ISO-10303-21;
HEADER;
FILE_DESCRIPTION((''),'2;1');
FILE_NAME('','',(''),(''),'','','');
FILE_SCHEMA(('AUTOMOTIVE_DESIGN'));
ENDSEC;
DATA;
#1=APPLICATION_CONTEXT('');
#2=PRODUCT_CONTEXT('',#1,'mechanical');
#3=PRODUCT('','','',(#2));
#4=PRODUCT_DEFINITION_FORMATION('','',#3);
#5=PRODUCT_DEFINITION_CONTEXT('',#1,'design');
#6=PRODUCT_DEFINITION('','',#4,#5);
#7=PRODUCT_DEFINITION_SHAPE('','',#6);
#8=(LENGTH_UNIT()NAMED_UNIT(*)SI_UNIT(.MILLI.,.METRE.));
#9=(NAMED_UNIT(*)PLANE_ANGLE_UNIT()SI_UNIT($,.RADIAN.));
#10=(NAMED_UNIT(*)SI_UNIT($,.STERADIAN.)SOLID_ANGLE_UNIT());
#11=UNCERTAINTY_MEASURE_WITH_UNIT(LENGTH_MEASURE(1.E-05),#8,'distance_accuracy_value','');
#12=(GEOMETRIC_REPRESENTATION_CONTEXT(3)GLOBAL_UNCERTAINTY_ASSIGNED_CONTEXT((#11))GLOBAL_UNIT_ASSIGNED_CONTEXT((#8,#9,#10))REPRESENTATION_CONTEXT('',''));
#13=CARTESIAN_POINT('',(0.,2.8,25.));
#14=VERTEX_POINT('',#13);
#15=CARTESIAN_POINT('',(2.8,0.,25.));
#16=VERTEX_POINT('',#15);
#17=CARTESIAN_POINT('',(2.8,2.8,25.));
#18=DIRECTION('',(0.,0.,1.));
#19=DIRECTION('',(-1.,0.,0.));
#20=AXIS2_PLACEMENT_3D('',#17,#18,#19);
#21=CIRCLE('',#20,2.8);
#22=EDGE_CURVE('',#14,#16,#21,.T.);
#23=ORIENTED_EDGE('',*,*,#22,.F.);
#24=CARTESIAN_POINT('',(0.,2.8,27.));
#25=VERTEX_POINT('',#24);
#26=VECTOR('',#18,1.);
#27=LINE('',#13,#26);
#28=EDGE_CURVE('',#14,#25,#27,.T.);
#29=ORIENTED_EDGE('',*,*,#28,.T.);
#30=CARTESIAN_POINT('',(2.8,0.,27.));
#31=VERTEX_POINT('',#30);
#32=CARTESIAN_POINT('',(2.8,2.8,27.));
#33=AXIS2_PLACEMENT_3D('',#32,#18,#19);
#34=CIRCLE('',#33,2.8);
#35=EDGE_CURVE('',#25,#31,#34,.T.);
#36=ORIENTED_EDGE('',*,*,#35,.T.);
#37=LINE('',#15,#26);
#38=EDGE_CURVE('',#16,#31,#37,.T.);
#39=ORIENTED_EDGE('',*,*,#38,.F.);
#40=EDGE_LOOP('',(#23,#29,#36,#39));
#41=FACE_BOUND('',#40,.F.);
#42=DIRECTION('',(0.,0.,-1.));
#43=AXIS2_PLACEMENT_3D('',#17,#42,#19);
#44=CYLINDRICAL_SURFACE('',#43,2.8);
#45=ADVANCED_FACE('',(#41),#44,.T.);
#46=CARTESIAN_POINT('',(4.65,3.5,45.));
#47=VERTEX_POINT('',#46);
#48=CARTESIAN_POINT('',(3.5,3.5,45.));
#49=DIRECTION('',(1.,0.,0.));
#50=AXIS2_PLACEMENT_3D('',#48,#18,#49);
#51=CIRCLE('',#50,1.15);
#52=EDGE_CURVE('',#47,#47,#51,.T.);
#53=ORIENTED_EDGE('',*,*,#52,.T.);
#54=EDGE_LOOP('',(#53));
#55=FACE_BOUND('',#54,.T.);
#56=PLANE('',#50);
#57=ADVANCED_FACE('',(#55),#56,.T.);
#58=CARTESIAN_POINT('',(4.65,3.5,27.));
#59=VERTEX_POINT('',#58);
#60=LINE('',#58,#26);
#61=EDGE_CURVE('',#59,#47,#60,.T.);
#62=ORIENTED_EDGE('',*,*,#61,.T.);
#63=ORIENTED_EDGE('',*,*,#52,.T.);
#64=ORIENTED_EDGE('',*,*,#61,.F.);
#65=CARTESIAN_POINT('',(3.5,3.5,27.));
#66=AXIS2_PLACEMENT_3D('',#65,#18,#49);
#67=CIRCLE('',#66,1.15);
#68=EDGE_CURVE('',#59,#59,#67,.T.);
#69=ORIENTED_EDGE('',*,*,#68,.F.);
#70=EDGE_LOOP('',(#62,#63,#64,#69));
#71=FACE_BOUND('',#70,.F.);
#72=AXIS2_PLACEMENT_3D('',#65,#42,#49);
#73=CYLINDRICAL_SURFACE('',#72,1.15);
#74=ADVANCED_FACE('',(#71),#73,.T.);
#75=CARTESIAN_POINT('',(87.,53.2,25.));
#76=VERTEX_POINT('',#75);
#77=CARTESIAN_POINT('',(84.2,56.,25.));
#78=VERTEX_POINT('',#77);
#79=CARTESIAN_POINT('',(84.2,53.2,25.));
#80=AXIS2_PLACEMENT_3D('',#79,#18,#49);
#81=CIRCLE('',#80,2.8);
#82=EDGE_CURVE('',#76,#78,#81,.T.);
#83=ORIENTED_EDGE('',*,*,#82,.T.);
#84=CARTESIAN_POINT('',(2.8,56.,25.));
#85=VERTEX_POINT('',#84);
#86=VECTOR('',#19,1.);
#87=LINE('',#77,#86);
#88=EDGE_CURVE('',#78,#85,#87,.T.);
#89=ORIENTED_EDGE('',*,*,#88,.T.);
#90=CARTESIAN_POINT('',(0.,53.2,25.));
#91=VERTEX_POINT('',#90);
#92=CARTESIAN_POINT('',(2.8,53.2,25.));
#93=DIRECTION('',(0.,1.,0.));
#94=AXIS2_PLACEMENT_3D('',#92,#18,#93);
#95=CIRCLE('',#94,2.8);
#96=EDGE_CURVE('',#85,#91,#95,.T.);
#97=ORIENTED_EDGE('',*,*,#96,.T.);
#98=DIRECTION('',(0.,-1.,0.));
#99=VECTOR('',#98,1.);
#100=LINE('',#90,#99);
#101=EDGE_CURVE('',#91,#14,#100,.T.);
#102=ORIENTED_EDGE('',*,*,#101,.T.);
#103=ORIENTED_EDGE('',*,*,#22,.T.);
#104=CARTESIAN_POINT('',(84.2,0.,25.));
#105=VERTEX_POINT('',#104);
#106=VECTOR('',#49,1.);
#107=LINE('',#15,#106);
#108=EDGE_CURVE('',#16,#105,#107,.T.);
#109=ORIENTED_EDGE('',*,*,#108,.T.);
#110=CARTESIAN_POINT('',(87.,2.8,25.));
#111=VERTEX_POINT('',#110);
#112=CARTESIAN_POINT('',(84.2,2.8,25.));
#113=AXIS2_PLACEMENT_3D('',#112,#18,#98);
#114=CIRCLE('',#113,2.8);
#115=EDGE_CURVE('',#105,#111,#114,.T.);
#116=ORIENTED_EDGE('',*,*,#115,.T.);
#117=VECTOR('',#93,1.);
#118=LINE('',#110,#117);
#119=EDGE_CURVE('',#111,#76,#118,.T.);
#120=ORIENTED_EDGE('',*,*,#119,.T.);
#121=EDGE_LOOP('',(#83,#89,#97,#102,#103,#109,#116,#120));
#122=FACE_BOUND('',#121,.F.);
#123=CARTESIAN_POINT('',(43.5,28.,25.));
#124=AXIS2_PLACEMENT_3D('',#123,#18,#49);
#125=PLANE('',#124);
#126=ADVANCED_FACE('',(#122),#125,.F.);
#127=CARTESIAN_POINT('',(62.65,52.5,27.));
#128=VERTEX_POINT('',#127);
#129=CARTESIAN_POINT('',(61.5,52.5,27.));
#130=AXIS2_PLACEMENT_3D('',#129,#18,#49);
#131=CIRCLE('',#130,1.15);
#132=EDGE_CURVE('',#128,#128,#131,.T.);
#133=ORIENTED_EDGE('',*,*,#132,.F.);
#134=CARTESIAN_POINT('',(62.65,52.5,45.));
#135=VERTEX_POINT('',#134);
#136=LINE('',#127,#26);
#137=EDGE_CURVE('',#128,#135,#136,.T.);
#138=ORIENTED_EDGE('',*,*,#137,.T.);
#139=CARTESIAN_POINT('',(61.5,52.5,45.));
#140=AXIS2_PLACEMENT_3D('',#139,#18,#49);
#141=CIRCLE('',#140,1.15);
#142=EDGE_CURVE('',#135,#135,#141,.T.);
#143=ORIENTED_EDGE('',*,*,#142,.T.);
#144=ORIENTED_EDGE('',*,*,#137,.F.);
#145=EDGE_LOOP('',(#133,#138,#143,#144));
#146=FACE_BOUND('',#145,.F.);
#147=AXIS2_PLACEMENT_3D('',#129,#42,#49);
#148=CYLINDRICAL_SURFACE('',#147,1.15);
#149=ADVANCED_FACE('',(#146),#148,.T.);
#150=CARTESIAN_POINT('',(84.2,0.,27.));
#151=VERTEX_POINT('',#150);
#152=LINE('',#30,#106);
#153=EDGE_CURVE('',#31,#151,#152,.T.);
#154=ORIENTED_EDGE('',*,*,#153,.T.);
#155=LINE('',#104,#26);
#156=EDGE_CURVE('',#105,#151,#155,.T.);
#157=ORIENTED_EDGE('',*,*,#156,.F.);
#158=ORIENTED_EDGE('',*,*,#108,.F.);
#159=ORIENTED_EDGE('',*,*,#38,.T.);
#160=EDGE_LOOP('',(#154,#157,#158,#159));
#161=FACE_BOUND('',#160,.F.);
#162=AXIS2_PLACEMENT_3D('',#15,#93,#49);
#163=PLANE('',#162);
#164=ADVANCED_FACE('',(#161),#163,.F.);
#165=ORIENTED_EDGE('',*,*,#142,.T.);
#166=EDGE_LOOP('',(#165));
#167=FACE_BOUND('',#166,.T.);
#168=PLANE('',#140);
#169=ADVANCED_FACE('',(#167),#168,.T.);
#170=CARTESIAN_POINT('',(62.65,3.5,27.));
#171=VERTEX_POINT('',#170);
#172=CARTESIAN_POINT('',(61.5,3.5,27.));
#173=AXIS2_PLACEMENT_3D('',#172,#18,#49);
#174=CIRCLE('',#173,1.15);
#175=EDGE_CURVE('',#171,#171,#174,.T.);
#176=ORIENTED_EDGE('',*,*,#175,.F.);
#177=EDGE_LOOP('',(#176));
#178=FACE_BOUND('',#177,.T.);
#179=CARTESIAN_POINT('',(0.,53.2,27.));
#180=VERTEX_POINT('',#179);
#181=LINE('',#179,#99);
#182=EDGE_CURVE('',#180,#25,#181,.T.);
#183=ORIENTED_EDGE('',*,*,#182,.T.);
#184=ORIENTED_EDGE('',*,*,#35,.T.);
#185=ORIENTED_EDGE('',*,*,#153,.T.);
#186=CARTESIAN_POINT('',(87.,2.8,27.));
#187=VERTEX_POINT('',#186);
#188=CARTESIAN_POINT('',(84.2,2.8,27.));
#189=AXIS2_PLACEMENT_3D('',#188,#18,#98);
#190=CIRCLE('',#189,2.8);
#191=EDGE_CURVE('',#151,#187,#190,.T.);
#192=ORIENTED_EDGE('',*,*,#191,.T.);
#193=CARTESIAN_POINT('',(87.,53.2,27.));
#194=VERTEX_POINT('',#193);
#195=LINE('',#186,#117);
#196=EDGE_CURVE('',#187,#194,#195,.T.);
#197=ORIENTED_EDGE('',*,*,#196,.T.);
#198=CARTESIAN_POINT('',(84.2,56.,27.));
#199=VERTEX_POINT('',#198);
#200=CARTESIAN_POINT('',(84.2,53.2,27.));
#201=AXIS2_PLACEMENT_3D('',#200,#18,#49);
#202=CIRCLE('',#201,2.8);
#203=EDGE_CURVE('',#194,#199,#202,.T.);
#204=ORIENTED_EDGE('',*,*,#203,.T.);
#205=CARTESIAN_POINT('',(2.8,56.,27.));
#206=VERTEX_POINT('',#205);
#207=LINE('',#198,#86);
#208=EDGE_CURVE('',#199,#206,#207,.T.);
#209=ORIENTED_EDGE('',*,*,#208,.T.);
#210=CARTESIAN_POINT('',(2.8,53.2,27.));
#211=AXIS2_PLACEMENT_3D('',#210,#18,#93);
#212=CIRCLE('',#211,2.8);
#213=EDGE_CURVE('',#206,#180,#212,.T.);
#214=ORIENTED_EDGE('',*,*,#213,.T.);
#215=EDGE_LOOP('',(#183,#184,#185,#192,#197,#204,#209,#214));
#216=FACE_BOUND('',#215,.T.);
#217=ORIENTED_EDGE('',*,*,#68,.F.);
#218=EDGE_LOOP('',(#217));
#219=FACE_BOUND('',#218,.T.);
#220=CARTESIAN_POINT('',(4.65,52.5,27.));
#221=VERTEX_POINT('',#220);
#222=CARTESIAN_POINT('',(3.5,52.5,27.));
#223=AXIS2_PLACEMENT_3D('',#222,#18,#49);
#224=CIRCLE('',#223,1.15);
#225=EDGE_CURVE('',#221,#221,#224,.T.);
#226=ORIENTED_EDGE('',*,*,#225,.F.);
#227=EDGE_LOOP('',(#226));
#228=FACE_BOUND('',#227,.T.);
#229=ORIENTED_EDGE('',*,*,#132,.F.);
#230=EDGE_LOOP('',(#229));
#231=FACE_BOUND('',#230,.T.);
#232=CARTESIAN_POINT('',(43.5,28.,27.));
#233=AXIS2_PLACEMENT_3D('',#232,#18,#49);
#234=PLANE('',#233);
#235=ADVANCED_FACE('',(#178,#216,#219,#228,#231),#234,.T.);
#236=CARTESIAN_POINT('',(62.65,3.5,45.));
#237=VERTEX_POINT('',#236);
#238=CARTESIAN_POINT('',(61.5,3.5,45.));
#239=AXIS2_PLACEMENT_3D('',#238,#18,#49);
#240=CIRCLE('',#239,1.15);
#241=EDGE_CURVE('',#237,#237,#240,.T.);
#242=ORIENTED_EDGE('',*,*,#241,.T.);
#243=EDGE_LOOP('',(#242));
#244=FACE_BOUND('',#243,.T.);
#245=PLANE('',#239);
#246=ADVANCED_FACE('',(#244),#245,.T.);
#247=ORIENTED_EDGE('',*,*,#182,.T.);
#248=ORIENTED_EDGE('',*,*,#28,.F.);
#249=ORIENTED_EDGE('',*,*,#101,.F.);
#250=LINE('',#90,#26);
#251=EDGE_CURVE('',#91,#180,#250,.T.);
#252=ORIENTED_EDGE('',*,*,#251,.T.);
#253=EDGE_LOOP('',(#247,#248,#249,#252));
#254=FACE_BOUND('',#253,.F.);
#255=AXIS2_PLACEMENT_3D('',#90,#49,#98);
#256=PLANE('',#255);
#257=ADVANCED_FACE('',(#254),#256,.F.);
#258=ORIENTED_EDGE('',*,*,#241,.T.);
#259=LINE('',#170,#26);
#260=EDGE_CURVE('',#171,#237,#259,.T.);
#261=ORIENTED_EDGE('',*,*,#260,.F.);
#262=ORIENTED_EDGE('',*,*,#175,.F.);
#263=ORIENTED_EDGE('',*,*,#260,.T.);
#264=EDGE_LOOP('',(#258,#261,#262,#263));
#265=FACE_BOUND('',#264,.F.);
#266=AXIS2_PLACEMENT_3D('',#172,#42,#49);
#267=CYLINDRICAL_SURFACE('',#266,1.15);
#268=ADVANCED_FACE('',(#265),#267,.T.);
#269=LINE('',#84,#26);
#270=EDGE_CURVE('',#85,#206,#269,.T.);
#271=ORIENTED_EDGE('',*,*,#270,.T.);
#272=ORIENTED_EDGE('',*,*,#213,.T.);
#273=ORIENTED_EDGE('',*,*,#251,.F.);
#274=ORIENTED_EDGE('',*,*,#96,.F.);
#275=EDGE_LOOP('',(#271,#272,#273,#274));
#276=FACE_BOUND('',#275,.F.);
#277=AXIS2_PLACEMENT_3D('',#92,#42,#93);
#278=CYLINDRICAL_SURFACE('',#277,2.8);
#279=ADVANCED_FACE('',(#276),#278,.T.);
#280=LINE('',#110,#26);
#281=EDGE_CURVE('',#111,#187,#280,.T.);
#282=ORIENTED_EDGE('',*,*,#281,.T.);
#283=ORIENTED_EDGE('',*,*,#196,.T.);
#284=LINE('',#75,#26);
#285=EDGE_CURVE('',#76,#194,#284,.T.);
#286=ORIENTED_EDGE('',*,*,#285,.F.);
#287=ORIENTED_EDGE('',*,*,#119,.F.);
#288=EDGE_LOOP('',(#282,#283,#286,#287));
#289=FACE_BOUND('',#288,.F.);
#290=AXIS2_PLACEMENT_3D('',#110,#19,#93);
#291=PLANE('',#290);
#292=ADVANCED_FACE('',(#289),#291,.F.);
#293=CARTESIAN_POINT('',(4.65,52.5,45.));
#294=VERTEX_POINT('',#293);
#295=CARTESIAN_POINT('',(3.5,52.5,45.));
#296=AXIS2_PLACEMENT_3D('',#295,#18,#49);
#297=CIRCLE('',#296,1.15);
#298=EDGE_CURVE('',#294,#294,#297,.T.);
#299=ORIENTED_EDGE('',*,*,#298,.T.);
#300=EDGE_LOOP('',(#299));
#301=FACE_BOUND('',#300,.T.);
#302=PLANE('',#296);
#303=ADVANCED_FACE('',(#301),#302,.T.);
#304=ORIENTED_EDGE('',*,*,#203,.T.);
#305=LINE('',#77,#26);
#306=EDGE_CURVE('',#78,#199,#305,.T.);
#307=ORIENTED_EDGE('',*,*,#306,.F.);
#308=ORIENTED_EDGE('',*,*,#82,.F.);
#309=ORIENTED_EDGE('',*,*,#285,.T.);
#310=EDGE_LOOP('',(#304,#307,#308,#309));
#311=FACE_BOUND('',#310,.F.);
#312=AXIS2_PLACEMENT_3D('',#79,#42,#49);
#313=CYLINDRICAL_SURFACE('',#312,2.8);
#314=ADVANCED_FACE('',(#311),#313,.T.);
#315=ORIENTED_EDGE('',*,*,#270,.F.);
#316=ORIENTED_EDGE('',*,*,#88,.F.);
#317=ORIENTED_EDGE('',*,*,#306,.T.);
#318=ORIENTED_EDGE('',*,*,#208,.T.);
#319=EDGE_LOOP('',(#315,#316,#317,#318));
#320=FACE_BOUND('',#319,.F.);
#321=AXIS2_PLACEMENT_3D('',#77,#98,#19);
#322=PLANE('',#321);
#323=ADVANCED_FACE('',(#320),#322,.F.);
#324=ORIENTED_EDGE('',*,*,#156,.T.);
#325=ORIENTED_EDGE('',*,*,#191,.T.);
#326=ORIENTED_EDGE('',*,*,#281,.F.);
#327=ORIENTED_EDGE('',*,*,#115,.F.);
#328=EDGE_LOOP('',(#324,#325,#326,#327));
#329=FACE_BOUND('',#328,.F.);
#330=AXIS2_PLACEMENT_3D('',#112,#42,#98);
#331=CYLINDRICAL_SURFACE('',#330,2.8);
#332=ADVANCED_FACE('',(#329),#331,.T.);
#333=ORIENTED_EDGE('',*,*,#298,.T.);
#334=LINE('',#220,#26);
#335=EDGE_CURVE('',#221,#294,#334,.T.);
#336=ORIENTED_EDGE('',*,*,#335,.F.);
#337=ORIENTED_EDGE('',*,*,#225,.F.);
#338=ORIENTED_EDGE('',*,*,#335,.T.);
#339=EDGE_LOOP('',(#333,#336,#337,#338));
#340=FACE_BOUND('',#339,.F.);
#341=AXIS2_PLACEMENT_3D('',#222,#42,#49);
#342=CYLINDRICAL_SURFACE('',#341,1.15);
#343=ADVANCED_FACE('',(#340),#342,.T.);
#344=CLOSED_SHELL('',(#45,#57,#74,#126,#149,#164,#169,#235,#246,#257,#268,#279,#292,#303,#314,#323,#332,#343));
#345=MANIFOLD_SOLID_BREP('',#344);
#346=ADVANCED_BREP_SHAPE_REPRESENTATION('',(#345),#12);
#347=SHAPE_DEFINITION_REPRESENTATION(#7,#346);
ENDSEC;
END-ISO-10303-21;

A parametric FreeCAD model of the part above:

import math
import FreeCAD as App
import Part
import Sketcher
Q = App.Units.Quantity

doc = App.newDocument("Part")
body = doc.addObject("PartDesign::Body", "Body")

sketch1 = body.newObject("Sketcher::SketchObject", "Sketch")
sketch1.AttachmentSupport = (doc.getObject("XY_Plane"), [""])
sketch1.MapMode = "FlatFace"
sketch1.addGeometry([
    Part.ArcOfCircle(Part.Circle(App.Vector(2.8, 2.8, 0), App.Vector(0, 0, 1), 2.8), math.radians(180), math.radians(270)),
    Part.LineSegment(App.Vector(2.8, 0, 0), App.Vector(84.2, 0, 0)),
    Part.ArcOfCircle(Part.Circle(App.Vector(84.2, 2.8, 0), App.Vector(0, 0, 1), 2.8), math.radians(-90), math.radians(0)),
    Part.LineSegment(App.Vector(87, 2.8, 0), App.Vector(87, 53.2, 0)),
    Part.ArcOfCircle(Part.Circle(App.Vector(84.2, 53.2, 0), App.Vector(0, 0, 1), 2.8), math.radians(0), math.radians(90)),
    Part.LineSegment(App.Vector(84.2, 56, 0), App.Vector(2.8, 56, 0)),
    Part.ArcOfCircle(Part.Circle(App.Vector(2.8, 53.2, 0), App.Vector(0, 0, 1), 2.8), math.radians(90), math.radians(180)),
    Part.LineSegment(App.Vector(0, 53.2, 0), App.Vector(0, 2.8, 0)),
], False)
sketch1.addConstraint([
    Sketcher.Constraint("Tangent", 0, 2, 1, 1),
    Sketcher.Constraint("Tangent", 1, 2, 2, 1),
    Sketcher.Constraint("Tangent", 2, 2, 3, 1),
    Sketcher.Constraint("Tangent", 3, 2, 4, 1),
    Sketcher.Constraint("Tangent", 4, 2, 5, 1),
    Sketcher.Constraint("Tangent", 5, 2, 6, 1),
    Sketcher.Constraint("Tangent", 6, 2, 7, 1),
    Sketcher.Constraint("Tangent", 7, 2, 0, 1),
    Sketcher.Constraint("Horizontal", 1),
    Sketcher.Constraint("Vertical", 3),
    Sketcher.Constraint("Horizontal", 5),
    Sketcher.Constraint("Vertical", 7),
    Sketcher.Constraint("Equal", 0, 2),
    Sketcher.Constraint("Equal", 2, 4),
    Sketcher.Constraint("Equal", 4, 6),
    Sketcher.Constraint("PointOnObject", 0, 2, -1),
    Sketcher.Constraint("PointOnObject", 6, 2, -2),
    Sketcher.Constraint("Radius", 0, Q("2.8 mm")),
    Sketcher.Constraint("DistanceX", 1, 1, 1, 2, Q("81.4 mm")),
    Sketcher.Constraint("DistanceY", 3, 1, 3, 2, Q("50.4 mm")),
])
pad1 = body.newObject("PartDesign::Pad", "Pad")
pad1.Profile = sketch1
pad1.Length = 2

sketch2 = body.newObject("Sketcher::SketchObject", "Sketch001")
sketch2.AttachmentSupport = (doc.getObject("XY_Plane"), [""])
sketch2.MapMode = "FlatFace"
sketch2.addGeometry([
    Part.Circle(App.Vector(61.5, 3.5, 0), App.Vector(0, 0, 1), 1.15),
    Part.Circle(App.Vector(61.5, 52.5, 0), App.Vector(0, 0, 1), 1.15),
    Part.Circle(App.Vector(3.5, 52.5, 0), App.Vector(0, 0, 1), 1.15),
    Part.Circle(App.Vector(3.5, 3.5, 0), App.Vector(0, 0, 1), 1.15),
], False)
sketch2.addConstraint([
    Sketcher.Constraint("Equal", 0, 1),
    Sketcher.Constraint("Equal", 1, 2),
    Sketcher.Constraint("Equal", 2, 3),
    Sketcher.Constraint("Horizontal", 1, 3, 2, 3),
    Sketcher.Constraint("Horizontal", 0, 3, 3, 3),
    Sketcher.Constraint("Vertical", 0, 3, 1, 3),
    Sketcher.Constraint("Vertical", 2, 3, 3, 3),
    Sketcher.Constraint("Diameter", 0, Q("2.3 mm")),
    Sketcher.Constraint("DistanceY", 0, 3, 1, 3, Q("49 mm")),
    Sketcher.Constraint("DistanceX", 2, 3, 1, 3, Q("58 mm")),
    Sketcher.Constraint("DistanceX", -1, 1, 0, 3, Q("61.5 mm")),
    Sketcher.Constraint("DistanceY", -1, 1, 0, 3, Q("3.5 mm")),
])
pad2 = body.newObject("PartDesign::Pad", "Pad001")
pad2.Profile = sketch2
pad2.Length = 105
body2 = doc.addObject("PartDesign::Body", "Body001")

sketch3 = body2.newObject("Sketcher::SketchObject", "Sketch002")
sketch3.AttachmentSupport = (doc.getObject("XY_Plane001"), [""])
sketch3.MapMode = "FlatFace"
sketch3.AttachmentOffset = App.Placement(App.Vector(0, 0, 25), App.Rotation())
sketch3.addGeometry([
    Part.LineSegment(App.Vector(84.2, 56, 0), App.Vector(2.8, 56, 0)),
    Part.ArcOfCircle(Part.Circle(App.Vector(2.8, 53.2, 0), App.Vector(0, 0, 1), 2.8), math.radians(90), math.radians(180)),
    Part.LineSegment(App.Vector(0, 53.2, 0), App.Vector(0, 2.8, 0)),
    Part.ArcOfCircle(Part.Circle(App.Vector(2.8, 2.8, 0), App.Vector(0, 0, 1), 2.8), math.radians(180), math.radians(270)),
    Part.LineSegment(App.Vector(2.8, 0, 0), App.Vector(84.2, 0, 0)),
    Part.ArcOfCircle(Part.Circle(App.Vector(84.2, 2.8, 0), App.Vector(0, 0, 1), 2.8), math.radians(-90), math.radians(0)),
    Part.LineSegment(App.Vector(87, 2.8, 0), App.Vector(87, 53.2, 0)),
    Part.ArcOfCircle(Part.Circle(App.Vector(84.2, 53.2, 0), App.Vector(0, 0, 1), 2.8), math.radians(0), math.radians(90)),
], False)
sketch3.addConstraint([
    Sketcher.Constraint("Tangent", 0, 2, 1, 1),
    Sketcher.Constraint("Tangent", 1, 2, 2, 1),
    Sketcher.Constraint("Tangent", 2, 2, 3, 1),
    Sketcher.Constraint("Tangent", 3, 2, 4, 1),
    Sketcher.Constraint("Tangent", 4, 2, 5, 1),
    Sketcher.Constraint("Tangent", 5, 2, 6, 1),
    Sketcher.Constraint("Tangent", 6, 2, 7, 1),
    Sketcher.Constraint("Tangent", 7, 2, 0, 1),
    Sketcher.Constraint("Horizontal", 0),
    Sketcher.Constraint("Vertical", 2),
    Sketcher.Constraint("Horizontal", 4),
    Sketcher.Constraint("Vertical", 6),
    Sketcher.Constraint("Equal", 1, 3),
    Sketcher.Constraint("Equal", 3, 5),
    Sketcher.Constraint("Equal", 5, 7),
    Sketcher.Constraint("PointOnObject", 1, 2, -2),
    Sketcher.Constraint("PointOnObject", 3, 2, -1),
    Sketcher.Constraint("Radius", 1, Q("2.8 mm")),
    Sketcher.Constraint("DistanceX", 0, 2, 0, 1, Q("81.4 mm")),
    Sketcher.Constraint("DistanceY", 2, 2, 2, 1, Q("50.4 mm")),
])
pad3 = body2.newObject("PartDesign::Pad", "Pad002")
pad3.Profile = sketch3
pad3.Length = 2

sketch4 = body2.newObject("Sketcher::SketchObject", "Sketch003")
sketch4.AttachmentSupport = (doc.getObject("XY_Plane001"), [""])
sketch4.MapMode = "FlatFace"
sketch4.AttachmentOffset = App.Placement(App.Vector(0, 0, 25), App.Rotation())
sketch4.addGeometry([
    Part.Circle(App.Vector(3.5, 3.5, 0), App.Vector(0, 0, 1), 2.75),
    Part.Circle(App.Vector(3.5, 3.5, 0), App.Vector(0, 0, 1), 1.75),
    Part.Circle(App.Vector(3.5, 52.5, 0), App.Vector(0, 0, 1), 2.75),
    Part.Circle(App.Vector(3.5, 52.5, 0), App.Vector(0, 0, 1), 1.75),
    Part.Circle(App.Vector(61.5, 52.5, 0), App.Vector(0, 0, 1), 2.75),
    Part.Circle(App.Vector(61.5, 52.5, 0), App.Vector(0, 0, 1), 1.75),
    Part.Circle(App.Vector(61.5, 3.5, 0), App.Vector(0, 0, 1), 2.75),
    Part.Circle(App.Vector(61.5, 3.5, 0), App.Vector(0, 0, 1), 1.75),
], False)
sketch4.addConstraint([
    Sketcher.Constraint("Coincident", 1, 3, 0, 3),
    Sketcher.Constraint("Coincident", 3, 3, 2, 3),
    Sketcher.Constraint("Coincident", 5, 3, 4, 3),
    Sketcher.Constraint("Coincident", 7, 3, 6, 3),
    Sketcher.Constraint("Equal", 0, 2),
    Sketcher.Constraint("Equal", 1, 3),
    Sketcher.Constraint("Equal", 2, 4),
    Sketcher.Constraint("Equal", 3, 5),
    Sketcher.Constraint("Equal", 4, 6),
    Sketcher.Constraint("Equal", 5, 7),
    Sketcher.Constraint("Horizontal", 3, 3, 4, 3),
    Sketcher.Constraint("Horizontal", 1, 3, 6, 3),
    Sketcher.Constraint("Vertical", 1, 3, 2, 3),
    Sketcher.Constraint("Vertical", 5, 3, 6, 3),
    Sketcher.Constraint("Diameter", 0, Q("5.5 mm")),
    Sketcher.Constraint("Diameter", 1, Q("3.5 mm")),
    Sketcher.Constraint("DistanceY", 0, 3, 2, 3, Q("49 mm")),
    Sketcher.Constraint("DistanceX", 2, 3, 4, 3, Q("58 mm")),
    Sketcher.Constraint("DistanceX", -1, 1, 0, 3, Q("3.5 mm")),
    Sketcher.Constraint("DistanceY", -1, 1, 0, 3, Q("3.5 mm")),
])
pad4 = body2.newObject("PartDesign::Pad", "Pad003")
pad4.Profile = sketch4
pad4.Type = "UpToLast"

sketch5 = body2.newObject("Sketcher::SketchObject", "Sketch004")
sketch5.AttachmentSupport = (doc.getObject("XY_Plane001"), [""])
sketch5.MapMode = "FlatFace"
sketch5.AttachmentOffset = App.Placement(App.Vector(0, 0, 27), App.Rotation())
sketch5.addGeometry([
    Part.Circle(App.Vector(3.5, 52.5, 0), App.Vector(0, 0, 1), 1.15),
    Part.Circle(App.Vector(61.5, 52.5, 0), App.Vector(0, 0, 1), 1.15),
    Part.Circle(App.Vector(61.5, 3.5, 0), App.Vector(0, 0, 1), 1.15),
    Part.Circle(App.Vector(3.5, 3.5, 0), App.Vector(0, 0, 1), 1.15),
], False)
sketch5.addConstraint([
    Sketcher.Constraint("Equal", 0, 1),
    Sketcher.Constraint("Equal", 1, 2),
    Sketcher.Constraint("Equal", 2, 3),
    Sketcher.Constraint("Horizontal", 0, 3, 1, 3),
    Sketcher.Constraint("Horizontal", 2, 3, 3, 3),
    Sketcher.Constraint("Vertical", 1, 3, 2, 3),
    Sketcher.Constraint("Vertical", 0, 3, 3, 3),
    Sketcher.Constraint("Diameter", 0, Q("2.3 mm")),
    Sketcher.Constraint("DistanceX", 0, 3, 1, 3, Q("58 mm")),
    Sketcher.Constraint("DistanceY", 2, 3, 1, 3, Q("49 mm")),
    Sketcher.Constraint("DistanceX", -1, 1, 0, 3, Q("3.5 mm")),
    Sketcher.Constraint("DistanceY", -1, 1, 0, 3, Q("52.5 mm")),
])
pad5 = body2.newObject("PartDesign::Pad", "Pad004")
pad5.Profile = sketch5
pad5.Length = 18
body.Visibility = False

doc.recompute()
